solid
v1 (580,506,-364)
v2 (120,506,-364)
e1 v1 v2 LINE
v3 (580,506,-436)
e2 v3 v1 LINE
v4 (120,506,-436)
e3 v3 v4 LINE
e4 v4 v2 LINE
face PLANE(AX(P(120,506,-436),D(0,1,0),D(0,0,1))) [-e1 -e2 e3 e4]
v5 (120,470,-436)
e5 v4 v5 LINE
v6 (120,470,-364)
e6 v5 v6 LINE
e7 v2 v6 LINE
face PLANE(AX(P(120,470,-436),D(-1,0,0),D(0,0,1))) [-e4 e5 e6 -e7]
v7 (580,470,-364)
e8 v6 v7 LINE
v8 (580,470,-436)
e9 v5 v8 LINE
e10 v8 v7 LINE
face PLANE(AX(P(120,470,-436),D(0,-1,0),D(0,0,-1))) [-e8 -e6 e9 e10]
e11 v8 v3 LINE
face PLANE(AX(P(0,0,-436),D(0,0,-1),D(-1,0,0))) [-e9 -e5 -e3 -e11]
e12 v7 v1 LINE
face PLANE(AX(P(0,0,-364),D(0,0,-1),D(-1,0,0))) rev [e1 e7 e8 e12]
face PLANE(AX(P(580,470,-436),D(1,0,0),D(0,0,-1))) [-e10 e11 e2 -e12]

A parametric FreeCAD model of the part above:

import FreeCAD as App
import Part
import Sketcher

doc = App.newDocument("Part")
params = doc.addObject("Spreadsheet::Sheet", "Params")
for row, (alias, value) in enumerate([
    ("sketch1_width", "460 mm"),
    ("sketch1_height", "36 mm"),
    ("pad1_length", "72 mm"),
], start=1):
    params.set(f"A{row}", alias)
    params.set(f"B{row}", "=" + value)
    params.setAlias(f"B{row}", alias)

body = doc.addObject("PartDesign::Body", "Body")

# Sketch on XY plane
sketch1 = body.newObject("Sketcher::SketchObject", "Sketch")
sketch1.AttachmentSupport = (doc.getObject("XY_Plane"), [""])
sketch1.MapMode = "FlatFace"
sketch1.AttachmentOffset = App.Placement(App.Vector(0, 0, -364), App.Rotation())
sketch1.addGeometry([
    Part.LineSegment(App.Vector(120, 506, 0), App.Vector(120, 470, 0)),
    Part.LineSegment(App.Vector(120, 470, 0), App.Vector(580, 470, 0)),
    Part.LineSegment(App.Vector(580, 470, 0), App.Vector(580, 506, 0)),
    Part.LineSegment(App.Vector(580, 506, 0), App.Vector(120, 506, 0)),
], False)
sketch1.addConstraint([
    Sketcher.Constraint("Coincident", 0, 2, 1, 1),
    Sketcher.Constraint("Coincident", 1, 2, 2, 1),
    Sketcher.Constraint("Coincident", 2, 2, 3, 1),
    Sketcher.Constraint("Coincident", 3, 2, 0, 1),
    Sketcher.Constraint("Vertical", 0),
    Sketcher.Constraint("Horizontal", 1),
    Sketcher.Constraint("Vertical", 2),
    Sketcher.Constraint("Horizontal", 3),
    Sketcher.Constraint("DistanceX", 1, 1, 1, 2, 460.0),
    Sketcher.Constraint("DistanceY", 0, 2, 0, 1, 36.0),
    Sketcher.Constraint("DistanceX", -1, 1, 0, 2, 120.0),
    Sketcher.Constraint("DistanceY", -1, 1, 0, 2, 470.0),
])
sketch1.setExpression("Constraints[8]", "Params.sketch1_width")
sketch1.setExpression("Constraints[9]", "Params.sketch1_height")
pad1 = body.newObject("PartDesign::Pad", "Pad")
pad1.Profile = sketch1
pad1.setExpression("Length", "Params.pad1_length")
pad1.Reversed = True

doc.recompute()
